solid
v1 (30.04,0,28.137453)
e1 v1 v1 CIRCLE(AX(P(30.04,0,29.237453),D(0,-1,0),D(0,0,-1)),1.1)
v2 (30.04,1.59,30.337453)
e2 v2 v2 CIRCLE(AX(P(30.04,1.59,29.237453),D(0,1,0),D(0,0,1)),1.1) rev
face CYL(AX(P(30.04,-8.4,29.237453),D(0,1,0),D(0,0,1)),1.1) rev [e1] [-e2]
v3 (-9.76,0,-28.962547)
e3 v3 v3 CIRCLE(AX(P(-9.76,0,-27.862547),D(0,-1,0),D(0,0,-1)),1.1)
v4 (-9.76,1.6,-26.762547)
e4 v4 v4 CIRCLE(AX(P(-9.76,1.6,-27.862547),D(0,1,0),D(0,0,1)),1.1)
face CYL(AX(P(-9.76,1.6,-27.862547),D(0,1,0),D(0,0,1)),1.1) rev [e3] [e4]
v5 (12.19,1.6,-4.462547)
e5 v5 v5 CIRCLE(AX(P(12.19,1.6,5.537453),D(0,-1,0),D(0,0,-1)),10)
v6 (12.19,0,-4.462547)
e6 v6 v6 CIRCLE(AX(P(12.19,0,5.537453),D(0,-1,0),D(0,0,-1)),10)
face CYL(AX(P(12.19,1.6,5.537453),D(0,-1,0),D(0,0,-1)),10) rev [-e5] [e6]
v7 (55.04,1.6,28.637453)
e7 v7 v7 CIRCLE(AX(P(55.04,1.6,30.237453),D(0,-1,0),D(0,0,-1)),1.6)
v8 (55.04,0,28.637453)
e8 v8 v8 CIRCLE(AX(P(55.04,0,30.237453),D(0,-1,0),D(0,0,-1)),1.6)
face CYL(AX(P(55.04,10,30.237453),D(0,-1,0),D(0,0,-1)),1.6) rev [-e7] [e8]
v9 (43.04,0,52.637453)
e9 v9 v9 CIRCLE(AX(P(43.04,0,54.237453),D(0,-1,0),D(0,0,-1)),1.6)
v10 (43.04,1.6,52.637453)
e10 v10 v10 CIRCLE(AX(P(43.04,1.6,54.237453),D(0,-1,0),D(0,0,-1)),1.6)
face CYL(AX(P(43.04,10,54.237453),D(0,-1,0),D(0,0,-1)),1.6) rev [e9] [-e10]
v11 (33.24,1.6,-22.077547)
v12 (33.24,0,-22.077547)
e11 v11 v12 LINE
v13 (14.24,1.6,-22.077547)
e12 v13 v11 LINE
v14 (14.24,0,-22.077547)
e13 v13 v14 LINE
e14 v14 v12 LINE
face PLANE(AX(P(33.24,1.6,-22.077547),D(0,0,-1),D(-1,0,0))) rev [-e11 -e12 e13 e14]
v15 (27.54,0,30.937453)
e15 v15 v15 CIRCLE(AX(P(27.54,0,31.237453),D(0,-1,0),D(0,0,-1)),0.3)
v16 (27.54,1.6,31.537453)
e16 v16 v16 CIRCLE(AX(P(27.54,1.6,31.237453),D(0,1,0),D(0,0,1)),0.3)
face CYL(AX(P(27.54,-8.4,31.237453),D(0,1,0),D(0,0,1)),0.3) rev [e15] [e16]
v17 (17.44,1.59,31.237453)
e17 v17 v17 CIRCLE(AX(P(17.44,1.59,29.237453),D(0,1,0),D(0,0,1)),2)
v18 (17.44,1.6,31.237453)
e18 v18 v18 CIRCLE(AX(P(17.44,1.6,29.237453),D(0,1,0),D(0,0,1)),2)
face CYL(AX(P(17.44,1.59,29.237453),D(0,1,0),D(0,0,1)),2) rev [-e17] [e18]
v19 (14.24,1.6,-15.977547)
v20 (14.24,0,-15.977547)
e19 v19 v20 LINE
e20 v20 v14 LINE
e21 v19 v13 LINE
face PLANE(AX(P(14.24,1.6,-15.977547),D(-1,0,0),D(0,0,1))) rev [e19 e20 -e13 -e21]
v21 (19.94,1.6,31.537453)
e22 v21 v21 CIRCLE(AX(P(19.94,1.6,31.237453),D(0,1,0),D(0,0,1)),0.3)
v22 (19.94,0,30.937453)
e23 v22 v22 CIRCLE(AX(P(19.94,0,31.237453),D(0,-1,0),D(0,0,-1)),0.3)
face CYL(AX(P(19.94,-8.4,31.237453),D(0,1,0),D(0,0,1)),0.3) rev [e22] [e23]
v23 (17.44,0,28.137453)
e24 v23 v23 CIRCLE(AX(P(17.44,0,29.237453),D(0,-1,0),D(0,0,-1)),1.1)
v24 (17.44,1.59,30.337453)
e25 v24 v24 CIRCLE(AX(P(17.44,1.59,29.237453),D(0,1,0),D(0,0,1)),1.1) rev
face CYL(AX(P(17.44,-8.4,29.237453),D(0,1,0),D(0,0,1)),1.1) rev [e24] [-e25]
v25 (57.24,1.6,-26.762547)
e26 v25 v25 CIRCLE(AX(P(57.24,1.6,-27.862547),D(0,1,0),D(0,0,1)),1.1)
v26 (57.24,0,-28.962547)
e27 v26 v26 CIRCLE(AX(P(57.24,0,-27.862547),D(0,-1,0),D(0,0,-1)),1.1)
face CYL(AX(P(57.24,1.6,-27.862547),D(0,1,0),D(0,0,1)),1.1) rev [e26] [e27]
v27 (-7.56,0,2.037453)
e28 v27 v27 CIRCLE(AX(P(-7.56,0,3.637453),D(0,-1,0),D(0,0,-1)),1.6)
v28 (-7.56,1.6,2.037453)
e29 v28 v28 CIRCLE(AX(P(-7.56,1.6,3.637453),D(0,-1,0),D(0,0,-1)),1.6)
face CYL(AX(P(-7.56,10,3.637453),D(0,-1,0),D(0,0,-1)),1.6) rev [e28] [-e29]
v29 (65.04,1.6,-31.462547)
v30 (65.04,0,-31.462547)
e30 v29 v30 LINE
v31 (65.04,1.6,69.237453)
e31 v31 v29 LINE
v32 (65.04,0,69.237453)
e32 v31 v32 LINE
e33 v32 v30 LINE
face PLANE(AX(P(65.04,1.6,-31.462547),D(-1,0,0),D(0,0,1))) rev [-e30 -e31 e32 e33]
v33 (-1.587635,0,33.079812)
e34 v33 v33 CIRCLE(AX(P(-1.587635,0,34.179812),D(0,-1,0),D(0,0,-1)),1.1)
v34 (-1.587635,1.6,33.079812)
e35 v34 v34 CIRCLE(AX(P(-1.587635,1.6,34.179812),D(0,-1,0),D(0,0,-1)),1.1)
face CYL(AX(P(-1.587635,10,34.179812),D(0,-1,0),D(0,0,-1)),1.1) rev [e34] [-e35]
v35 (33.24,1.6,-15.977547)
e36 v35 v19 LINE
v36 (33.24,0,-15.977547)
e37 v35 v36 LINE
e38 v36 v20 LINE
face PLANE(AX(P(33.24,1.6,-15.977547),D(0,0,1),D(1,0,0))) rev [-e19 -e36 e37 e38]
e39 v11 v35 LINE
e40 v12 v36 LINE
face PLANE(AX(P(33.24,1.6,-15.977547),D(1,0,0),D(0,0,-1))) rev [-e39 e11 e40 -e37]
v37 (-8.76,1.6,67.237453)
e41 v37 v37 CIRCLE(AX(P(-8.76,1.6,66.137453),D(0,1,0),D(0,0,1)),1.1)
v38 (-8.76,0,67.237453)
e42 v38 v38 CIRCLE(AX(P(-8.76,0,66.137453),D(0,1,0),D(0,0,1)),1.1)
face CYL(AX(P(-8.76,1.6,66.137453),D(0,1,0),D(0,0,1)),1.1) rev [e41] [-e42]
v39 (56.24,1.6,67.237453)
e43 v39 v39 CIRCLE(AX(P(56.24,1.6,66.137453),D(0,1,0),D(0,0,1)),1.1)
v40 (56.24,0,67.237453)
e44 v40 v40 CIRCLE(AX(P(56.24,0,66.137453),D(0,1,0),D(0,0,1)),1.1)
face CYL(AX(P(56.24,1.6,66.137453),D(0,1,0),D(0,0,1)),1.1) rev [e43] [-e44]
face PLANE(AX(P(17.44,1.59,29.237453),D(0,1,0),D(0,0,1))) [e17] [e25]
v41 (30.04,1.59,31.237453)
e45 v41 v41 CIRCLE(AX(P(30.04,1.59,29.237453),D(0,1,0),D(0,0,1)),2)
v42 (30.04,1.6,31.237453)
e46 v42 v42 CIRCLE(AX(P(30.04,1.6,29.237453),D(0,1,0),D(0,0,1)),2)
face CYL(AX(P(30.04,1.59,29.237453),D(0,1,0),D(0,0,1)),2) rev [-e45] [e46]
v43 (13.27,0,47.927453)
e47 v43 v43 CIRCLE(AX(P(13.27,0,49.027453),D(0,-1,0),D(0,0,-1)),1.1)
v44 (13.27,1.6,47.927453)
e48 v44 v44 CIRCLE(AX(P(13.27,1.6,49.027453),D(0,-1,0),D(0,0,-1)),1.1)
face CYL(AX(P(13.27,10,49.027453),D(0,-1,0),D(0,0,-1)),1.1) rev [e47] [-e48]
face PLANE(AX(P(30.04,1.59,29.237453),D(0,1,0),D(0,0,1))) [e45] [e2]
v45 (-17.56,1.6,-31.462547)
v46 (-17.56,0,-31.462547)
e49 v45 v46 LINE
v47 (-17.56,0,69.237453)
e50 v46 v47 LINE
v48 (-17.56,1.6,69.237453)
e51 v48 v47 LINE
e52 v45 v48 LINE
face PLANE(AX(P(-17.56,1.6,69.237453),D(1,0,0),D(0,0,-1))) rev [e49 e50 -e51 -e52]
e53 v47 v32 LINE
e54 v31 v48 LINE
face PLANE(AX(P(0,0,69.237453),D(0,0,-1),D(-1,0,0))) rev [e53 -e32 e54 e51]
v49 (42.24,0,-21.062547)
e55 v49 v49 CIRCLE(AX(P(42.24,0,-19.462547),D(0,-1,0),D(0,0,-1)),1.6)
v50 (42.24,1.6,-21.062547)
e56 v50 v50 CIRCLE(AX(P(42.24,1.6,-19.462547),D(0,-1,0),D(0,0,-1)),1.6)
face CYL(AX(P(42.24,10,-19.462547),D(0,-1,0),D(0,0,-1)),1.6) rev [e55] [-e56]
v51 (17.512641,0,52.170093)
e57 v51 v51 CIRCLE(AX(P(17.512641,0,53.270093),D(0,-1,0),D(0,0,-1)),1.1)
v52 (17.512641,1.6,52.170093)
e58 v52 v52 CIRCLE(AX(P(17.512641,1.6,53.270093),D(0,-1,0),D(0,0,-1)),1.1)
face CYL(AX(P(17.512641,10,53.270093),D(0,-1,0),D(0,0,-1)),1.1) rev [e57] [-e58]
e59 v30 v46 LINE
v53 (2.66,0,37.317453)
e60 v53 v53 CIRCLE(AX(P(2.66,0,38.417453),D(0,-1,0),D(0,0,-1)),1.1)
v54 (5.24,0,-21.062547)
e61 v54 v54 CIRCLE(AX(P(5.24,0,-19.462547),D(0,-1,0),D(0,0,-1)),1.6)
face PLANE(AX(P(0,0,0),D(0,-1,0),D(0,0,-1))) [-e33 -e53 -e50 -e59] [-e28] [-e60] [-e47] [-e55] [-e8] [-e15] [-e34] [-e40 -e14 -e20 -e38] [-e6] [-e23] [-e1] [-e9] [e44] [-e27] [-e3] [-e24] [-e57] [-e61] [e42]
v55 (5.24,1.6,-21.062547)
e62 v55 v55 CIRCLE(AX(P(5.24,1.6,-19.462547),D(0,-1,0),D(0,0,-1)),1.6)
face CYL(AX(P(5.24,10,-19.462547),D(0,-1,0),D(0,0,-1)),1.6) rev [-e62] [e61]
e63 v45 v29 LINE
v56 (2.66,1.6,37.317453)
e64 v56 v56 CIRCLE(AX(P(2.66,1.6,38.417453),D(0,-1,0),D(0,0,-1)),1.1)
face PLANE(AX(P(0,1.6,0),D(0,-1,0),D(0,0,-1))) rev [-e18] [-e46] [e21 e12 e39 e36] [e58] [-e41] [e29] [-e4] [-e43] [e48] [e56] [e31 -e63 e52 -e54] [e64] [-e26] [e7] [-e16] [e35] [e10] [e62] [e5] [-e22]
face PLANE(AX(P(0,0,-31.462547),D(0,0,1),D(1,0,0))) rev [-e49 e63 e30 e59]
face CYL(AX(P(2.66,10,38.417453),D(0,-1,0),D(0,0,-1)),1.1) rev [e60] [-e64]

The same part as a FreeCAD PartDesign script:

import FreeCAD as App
import Part
import Sketcher
from FreeCAD import Vector


def add_polygon(sketch, points):
    """Adds a closed chain of lines whose ends are joined by coincident constraints."""
    first, n = sketch.GeometryCount, len(points)
    for a, b in zip(points, points[1:] + points[:1]):
        sketch.addGeometry(Part.LineSegment(App.Vector(*a, 0), App.Vector(*b, 0)), False)
    for i in range(n):
        sketch.addConstraint(Sketcher.Constraint("Coincident", first + i, 2, first + (i + 1) % n, 1))

doc = App.newDocument("Part")
body = doc.addObject("PartDesign::Body", "Body")

# Sketch on XZ plane
sketch1 = body.newObject("Sketcher::SketchObject", "Sketch")
sketch1.AttachmentSupport = (doc.getObject("XZ_Plane"), [""])
sketch1.MapMode = "FlatFace"
add_polygon(sketch1, [(65, 70), (65, -30), (-18, -30), (-18, 70)])  # lines 0-3
sketch1.addConstraint(Sketcher.Constraint("Vertical", 0))
sketch1.addConstraint(Sketcher.Constraint("Horizontal", 1))
sketch1.addConstraint(Sketcher.Constraint("Vertical", 2))
sketch1.addConstraint(Sketcher.Constraint("Horizontal", 3))
sketch1.addConstraint(Sketcher.Constraint("DistanceX", 1, 2, 1, 1, 83.0))
sketch1.addConstraint(Sketcher.Constraint("DistanceY", 0, 2, 0, 1, 100.0))
sketch1.addConstraint(Sketcher.Constraint("DistanceX", -1, 1, 0, 2, 65.24))
sketch1.addConstraint(Sketcher.Constraint("DistanceY", 0, 2, -1, 1, 29.862547))
pad1 = body.newObject("PartDesign::Pad", "Pad")
pad1.Profile = sketch1
pad1.Length = 1.6
pad1.Reversed = True

# Sketch on XZ plane
sketch2 = body.newObject("Sketcher::SketchObject", "Sketch001")
sketch2.AttachmentSupport = (doc.getObject("XZ_Plane"), [""])
sketch2.MapMode = "FlatFace"
sketch2.AttachmentOffset = App.Placement(Vector(0, 0, -1.6), App.Rotation())
sketch2.addGeometry(Part.Circle(Vector(57.2, -27.9, 0), Vector(0, 0, 1), 1.1), False)
sketch2.addGeometry(Part.Circle(Vector(-9.8, -27.9, 0), Vector(0, 0, 1), 1.1), False)
sketch2.addConstraint(Sketcher.Constraint("Equal", 0, 1))
sketch2.addConstraint(Sketcher.Constraint("Horizontal", 0, 3, 1, 3))
sketch2.addConstraint(Sketcher.Constraint("Diameter", 0, 2.2))
sketch2.addConstraint(Sketcher.Constraint("DistanceX", 1, 3, 0, 3, 67.0))
sketch2.addConstraint(Sketcher.Constraint("DistanceX", -1, 1, 0, 3, 57.24))
sketch2.addConstraint(Sketcher.Constraint("DistanceY", 0, 3, -1, 1, 27.862547))
doc.recompute()
hole = body.newObject("PartDesign::Hole", "Hole")
hole.Profile = sketch2
hole.ThreadType = "None"
hole.Diameter = 2.2
hole.DepthType = "Dimension"
hole.Depth = 5
hole.DrillPoint = "Flat"
hole.Reversed = True

# Sketch on XZ plane
sketch3 = body.newObject("Sketcher::SketchObject", "Sketch002")
sketch3.AttachmentSupport = (doc.getObject("XZ_Plane"), [""])
sketch3.MapMode = "FlatFace"
sketch3.addGeometry(Part.Circle(Vector(12, 6, 0), Vector(0, 0, 1), 10), False)
sketch3.addConstraint(Sketcher.Constraint("Diameter", 0, 20.0))
sketch3.addConstraint(Sketcher.Constraint("DistanceX", -1, 1, 0, 3, 12.19))
sketch3.addConstraint(Sketcher.Constraint("DistanceY", -1, 1, 0, 3, 5.537453))
pocket1 = body.newObject("PartDesign::Pocket", "Pocket")
pocket1.Profile = sketch3
pocket1.Type = "ThroughAll"

# Sketch on XZ plane
sketch4 = body.newObject("Sketcher::SketchObject", "Sketch003")
sketch4.AttachmentSupport = (doc.getObject("XZ_Plane"), [""])
sketch4.MapMode = "FlatFace"
add_polygon(sketch4, [(-17.8, 70.1), (-17.8, 67.6), (65.2, 67.6), (65.2, 70.1)])  # lines 0-3
sketch4.addConstraint(Sketcher.Constraint("Vertical", 0))
sketch4.addConstraint(Sketcher.Constraint("Horizontal", 1))
sketch4.addConstraint(Sketcher.Constraint("Vertical", 2))
sketch4.addConstraint(Sketcher.Constraint("Horizontal", 3))
sketch4.addConstraint(Sketcher.Constraint("DistanceX", 1, 1, 1, 2, 83.0))
sketch4.addConstraint(Sketcher.Constraint("DistanceY", 0, 2, 0, 1, 2.5))
sketch4.addConstraint(Sketcher.Constraint("DistanceX", 0, 2, -1, 1, 17.76))
sketch4.addConstraint(Sketcher.Constraint("DistanceY", -1, 1, 0, 2, 67.637453))
pocket2 = body.newObject("PartDesign::Pocket", "Pocket001")
pocket2.Profile = sketch4
pocket2.Type = "ThroughAll"

# Sketch on XY plane
sketch5 = body.newObject("Sketcher::SketchObject", "Sketch004")
sketch5.AttachmentSupport = (doc.getObject("XY_Plane"), [""])
sketch5.MapMode = "FlatFace"
sketch5.AttachmentOffset = App.Placement(Vector(0, 0, -29.862547), App.Rotation())
add_polygon(sketch5, [(65.2, 1.6), (65.2, 0), (-17.8, 0), (-17.8, 1.6)])  # lines 0-3
sketch5.addConstraint(Sketcher.Constraint("Vertical", 0))
sketch5.addConstraint(Sketcher.Constraint("Horizontal", 1))
sketch5.addConstraint(Sketcher.Constraint("Vertical", 2))
sketch5.addConstraint(Sketcher.Constraint("Horizontal", 3))
sketch5.addConstraint(Sketcher.Constraint("PointOnObject", 0, 2, -1))
sketch5.addConstraint(Sketcher.Constraint("DistanceX", 1, 2, 1, 1, 83.0))
sketch5.addConstraint(Sketcher.Constraint("DistanceY", 0, 2, 0, 1, 1.6))
sketch5.addConstraint(Sketcher.Constraint("DistanceX", -1, 1, 0, 2, 65.24))
pad2 = body.newObject("PartDesign::Pad", "Pad001")
pad2.Profile = sketch5
pad2.Length = 1.6
pad2.Reversed = True

# Sketch on XY plane
sketch6 = body.newObject("Sketcher::SketchObject", "Sketch005")
sketch6.AttachmentSupport = (doc.getObject("XY_Plane"), [""])
sketch6.MapMode = "FlatFace"
sketch6.AttachmentOffset = App.Placement(Vector(0, 0, 67.637453), App.Rotation())
add_polygon(sketch6, [(-17.8, 1.6), (-17.8, 0), (65.2, 0), (65.2, 1.6)])  # lines 0-3
sketch6.addConstraint(Sketcher.Constraint("Vertical", 0))
sketch6.addConstraint(Sketcher.Constraint("Horizontal", 1))
sketch6.addConstraint(Sketcher.Constraint("Vertical", 2))
sketch6.addConstraint(Sketcher.Constraint("Horizontal", 3))
sketch6.addConstraint(Sketcher.Constraint("PointOnObject", 0, 2, -1))
sketch6.addConstraint(Sketcher.Constraint("DistanceX", 1, 1, 1, 2, 83.0))
sketch6.addConstraint(Sketcher.Constraint("DistanceY", 0, 2, 0, 1, 1.6))
sketch6.addConstraint(Sketcher.Constraint("DistanceX", 0, 2, -1, 1, 17.76))
pad3 = body.newObject("PartDesign::Pad", "Pad002")
pad3.Profile = sketch6
pad3.Length = 1.6

# Sketch on XZ plane
sketch7 = body.newObject("Sketcher::SketchObject", "Sketch006")
sketch7.AttachmentSupport = (doc.getObject("XZ_Plane"), [""])
sketch7.MapMode = "FlatFace"
sketch7.AttachmentOffset = App.Placement(Vector(0, 0, -1.6), App.Rotation())
sketch7.addGeometry(Part.Circle(Vector(-8.8, 66.1, 0), Vector(0, 0, 1), 1.1), False)
sketch7.addGeometry(Part.Circle(Vector(56.2, 66.1, 0), Vector(0, 0, 1), 1.1), False)
sketch7.addConstraint(Sketcher.Constraint("Equal", 0, 1))
sketch7.addConstraint(Sketcher.Constraint("Horizontal", 0, 3, 1, 3))
sketch7.addConstraint(Sketcher.Constraint("Diameter", 0, 2.2))
sketch7.addConstraint(Sketcher.Constraint("DistanceX", 0, 3, 1, 3, 65.0))
sketch7.addConstraint(Sketcher.Constraint("DistanceX", 0, 3, -1, 1, 8.76))
sketch7.addConstraint(Sketcher.Constraint("DistanceY", -1, 1, 0, 3, 66.137453))
doc.recompute()
hole2 = body.newObject("PartDesign::Hole", "Hole001")
hole2.Profile = sketch7
hole2.ThreadType = "None"
hole2.Diameter = 2.2
hole2.DepthType = "Dimension"
hole2.Depth = 1.6
hole2.DrillPoint = "Flat"
hole2.Reversed = True

# Sketch on XZ plane
sketch8 = body.newObject("Sketcher::SketchObject", "Sketch007")
sketch8.AttachmentSupport = (doc.getObject("XZ_Plane"), [""])
sketch8.MapMode = "FlatFace"
add_polygon(sketch8, [(65.04, 69.24), (65.04, -31.46), (65.24, -31.46), (65.24, 69.24)])  # lines 0-3
add_polygon(sketch8, [(-17.76, 69.24), (-17.76, -31.46), (-17.56, -31.46), (-17.56, 69.24)])  # lines 4-7
sketch8.addConstraint(Sketcher.Constraint("Vertical", 0))
sketch8.addConstraint(Sketcher.Constraint("Horizontal", 1))
sketch8.addConstraint(Sketcher.Constraint("Vertical", 2))
sketch8.addConstraint(Sketcher.Constraint("Horizontal", 3))
sketch8.addConstraint(Sketcher.Constraint("Vertical", 4))
sketch8.addConstraint(Sketcher.Constraint("Horizontal", 5))
sketch8.addConstraint(Sketcher.Constraint("Vertical", 6))
sketch8.addConstraint(Sketcher.Constraint("Horizontal", 7))
sketch8.addConstraint(Sketcher.Constraint("Horizontal", 1, 2, 4, 2))
sketch8.addConstraint(Sketcher.Constraint("Horizontal", 3, 2, 6, 2))
sketch8.addConstraint(Sketcher.Constraint("Equal", 3, 5))
sketch8.addConstraint(Sketcher.Constraint("DistanceX", 1, 1, 1, 2, 0.2))
sketch8.addConstraint(Sketcher.Constraint("DistanceY", 0, 2, 0, 1, 100.7))
sketch8.addConstraint(Sketcher.Constraint("DistanceX", 4, 2, 1, 2, 83.0))
sketch8.addConstraint(Sketcher.Constraint("DistanceX", -1, 1, 0, 2, 65.04))
sketch8.addConstraint(Sketcher.Constraint("DistanceY", 0, 2, -1, 1, 31.462547))
pocket3 = body.newObject("PartDesign::Pocket", "Pocket002")
pocket3.Profile = sketch8
pocket3.Type = "ThroughAll"

# Sketch on XZ plane
sketch9 = body.newObject("Sketcher::SketchObject", "Sketch008")
sketch9.AttachmentSupport = (doc.getObject("XZ_Plane"), [""])
sketch9.MapMode = "FlatFace"
add_polygon(sketch9, [(14, -16), (14, -22), (33, -22), (33, -16)])  # lines 0-3
sketch9.addConstraint(Sketcher.Constraint("Vertical", 0))
sketch9.addConstraint(Sketcher.Constraint("Horizontal", 1))
sketch9.addConstraint(Sketcher.Constraint("Vertical", 2))
sketch9.addConstraint(Sketcher.Constraint("Horizontal", 3))
sketch9.addConstraint(Sketcher.Constraint("DistanceX", 1, 1, 1, 2, 19.0))
sketch9.addConstraint(Sketcher.Constraint("DistanceY", 0, 2, 0, 1, 6.1))
sketch9.addConstraint(Sketcher.Constraint("DistanceX", -1, 1, 0, 2, 14.24))
sketch9.addConstraint(Sketcher.Constraint("DistanceY", 0, 2, -1, 1, 22.077547))
pocket4 = body.newObject("PartDesign::Pocket", "Pocket003")
pocket4.Profile = sketch9
pocket4.Type = "ThroughAll"

# Sketch on XZ plane
sketch10 = body.newObject("Sketcher::SketchObject", "Sketch009")
sketch10.AttachmentSupport = (doc.getObject("XZ_Plane"), [""])
sketch10.MapMode = "FlatFace"
sketch10.addGeometry(Part.Circle(Vector(55, 30.2, 0), Vector(0, 0, 1), 1.6), False)
sketch10.addGeometry(Part.Circle(Vector(-7.6, 3.6, 0), Vector(0, 0, 1), 1.6), False)
sketch10.addGeometry(Part.Circle(Vector(42.2, -19.5, 0), Vector(0, 0, 1), 1.6), False)
sketch10.addGeometry(Part.Circle(Vector(5.2, -19.5, 0), Vector(0, 0, 1), 1.6), False)
sketch10.addGeometry(Part.Circle(Vector(43, 54.2, 0), Vector(0, 0, 1), 1.6), False)
sketch10.addConstraint(Sketcher.Constraint("Equal", 0, 1))
sketch10.addConstraint(Sketcher.Constraint("Equal", 1, 2))
sketch10.addConstraint(Sketcher.Constraint("Equal", 2, 3))
sketch10.addConstraint(Sketcher.Constraint("Equal", 3, 4))
sketch10.addConstraint(Sketcher.Constraint("Horizontal", 2, 3, 3, 3))
sketch10.addConstraint(Sketcher.Constraint("Diameter", 0, 3.2))
sketch10.addConstraint(Sketcher.Constraint("DistanceX", 3, 3, 2, 3, 37.0))
sketch10.addConstraint(Sketcher.Constraint("DistanceX", 4, 3, 0, 3, 12.0))
sketch10.addConstraint(Sketcher.Constraint("DistanceY", 0, 3, 4, 3, 24.0))
sketch10.addConstraint(Sketcher.Constraint("DistanceX", 1, 3, 0, 3, 62.6))
sketch10.addConstraint(Sketcher.Constraint("DistanceY", 1, 3, 0, 3, 26.6))
sketch10.addConstraint(Sketcher.Constraint("DistanceX", 2, 3, 0, 3, 12.8))
sketch10.addConstraint(Sketcher.Constraint("DistanceY", 2, 3, 0, 3, 49.7))
sketch10.addConstraint(Sketcher.Constraint("DistanceX", -1, 1, 0, 3, 55.04))
sketch10.addConstraint(Sketcher.Constraint("DistanceY", -1, 1, 0, 3, 30.237453))
pocket5 = body.newObject("PartDesign::Pocket", "Pocket004")
pocket5.Profile = sketch10
pocket5.Length = 10

# Sketch on XZ plane
sketch11 = body.newObject("Sketcher::SketchObject", "Sketch010")
sketch11.AttachmentSupport = (doc.getObject("XZ_Plane"), [""])
sketch11.MapMode = "FlatFace"
sketch11.AttachmentOffset = App.Placement(Vector(0, 0, -1.6), App.Rotation())
sketch11.addGeometry(Part.Circle(Vector(27.54, 31.24, 0), Vector(0, 0, 1), 0.3), False)
sketch11.addGeometry(Part.Circle(Vector(19.94, 31.24, 0), Vector(0, 0, 1), 0.3), False)
sketch11.addConstraint(Sketcher.Constraint("Equal", 0, 1))
sketch11.addConstraint(Sketcher.Constraint("Horizontal", 0, 3, 1, 3))
sketch11.addConstraint(Sketcher.Constraint("Diameter", 0, 0.6))
sketch11.addConstraint(Sketcher.Constraint("DistanceX", 1, 3, 0, 3, 7.6))
sketch11.addConstraint(Sketcher.Constraint("DistanceX", -1, 1, 0, 3, 27.54))
sketch11.addConstraint(Sketcher.Constraint("DistanceY", -1, 1, 0, 3, 31.237453))
pocket6 = body.newObject("PartDesign::Pocket", "Pocket005")
pocket6.Profile = sketch11
pocket6.Length = 10
pocket6.Reversed = True

# Sketch on XZ plane
sketch12 = body.newObject("Sketcher::SketchObject", "Sketch011")
sketch12.AttachmentSupport = (doc.getObject("XZ_Plane"), [""])
sketch12.MapMode = "FlatFace"
sketch12.AttachmentOffset = App.Placement(Vector(0, 0, -1.6), App.Rotation())
sketch12.addGeometry(Part.Circle(Vector(30, 29.2, 0), Vector(0, 0, 1), 1.1), False)
sketch12.addGeometry(Part.Circle(Vector(17.4, 29.2, 0), Vector(0, 0, 1), 1.1), False)
sketch12.addConstraint(Sketcher.Constraint("Equal", 0, 1))
sketch12.addConstraint(Sketcher.Constraint("Horizontal", 0, 3, 1, 3))
sketch12.addConstraint(Sketcher.Constraint("Diameter", 0, 2.2))
sketch12.addConstraint(Sketcher.Constraint("DistanceX", 1, 3, 0, 3, 12.6))
sketch12.addConstraint(Sketcher.Constraint("DistanceX", -1, 1, 0, 3, 30.04))
sketch12.addConstraint(Sketcher.Constraint("DistanceY", -1, 1, 0, 3, 29.237453))
pocket7 = body.newObject("PartDesign::Pocket", "Pocket006")
pocket7.Profile = sketch12
pocket7.Length = 10
pocket7.Reversed = True

# Sketch on XZ plane
sketch13 = body.newObject("Sketcher::SketchObject", "Sketch012")
sketch13.AttachmentSupport = (doc.getObject("XZ_Plane"), [""])
sketch13.MapMode = "FlatFace"
sketch13.AttachmentOffset = App.Placement(Vector(0, 0, -1.6), App.Rotation())
sketch13.addGeometry(Part.Circle(Vector(30, 29.2, 0), Vector(0, 0, 1), 2), False)
sketch13.addGeometry(Part.Circle(Vector(17.4, 29.2, 0), Vector(0, 0, 1), 2), False)
sketch13.addConstraint(Sketcher.Constraint("Equal", 0, 1))
sketch13.addConstraint(Sketcher.Constraint("Horizontal", 0, 3, 1, 3))
sketch13.addConstraint(Sketcher.Constraint("Diameter", 0, 4.0))
sketch13.addConstraint(Sketcher.Constraint("DistanceX", 1, 3, 0, 3, 12.6))
sketch13.addConstraint(Sketcher.Constraint("DistanceX", -1, 1, 0, 3, 30.04))
sketch13.addConstraint(Sketcher.Constraint("DistanceY", -1, 1, 0, 3, 29.237453))
pocket8 = body.newObject("PartDesign::Pocket", "Pocket007")
pocket8.Profile = sketch13
pocket8.Length = 0.01
pocket8.Reversed = True

# Sketch on XZ plane
sketch14 = body.newObject("Sketcher::SketchObject", "Sketch013")
sketch14.AttachmentSupport = (doc.getObject("XZ_Plane"), [""])
sketch14.MapMode = "FlatFace"
sketch14.addGeometry(Part.Circle(Vector(17.5, 53.3, 0), Vector(0, 0, 1), 1.1), False)
sketch14.addGeometry(Part.Circle(Vector(13.3, 49, 0), Vector(0, 0, 1), 1.1), False)
sketch14.addGeometry(Part.Circle(Vector(2.7, 38.4, 0), Vector(0, 0, 1), 1.1), False)
sketch14.addGeometry(Part.Circle(Vector(-1.6, 34.2, 0), Vector(0, 0, 1), 1.1), False)
sketch14.addConstraint(Sketcher.Constraint("Equal", 0, 1))
sketch14.addConstraint(Sketcher.Constraint("Equal", 1, 2))
sketch14.addConstraint(Sketcher.Constraint("Equal", 2, 3))
sketch14.addConstraint(Sketcher.Constraint("Diameter", 0, 2.2))
sketch14.addConstraint(Sketcher.Constraint("DistanceX", -1, 1, 1, 3, 13.27))
sketch14.addConstraint(Sketcher.Constraint("DistanceX", -1, 1, 2, 3, 2.66))
sketch14.addConstraint(Sketcher.Constraint("DistanceY", 2, 3, 1, 3, 10.61))
sketch14.addConstraint(Sketcher.Constraint("DistanceX", -1, 1, 0, 3, 17.512641))
sketch14.addConstraint(Sketcher.Constraint("DistanceY", 1, 3, 0, 3, 4.242641))
sketch14.addConstraint(Sketcher.Constraint("DistanceY", 3, 3, 2, 3, 4.237641))
sketch14.addConstraint(Sketcher.Constraint("DistanceY", -1, 1, 0, 3, 53.270093))
sketch14.addConstraint(Sketcher.Constraint("DistanceX", 3, 3, -1, 1, 1.587635))
pocket9 = body.newObject("PartDesign::Pocket", "Pocket008")
pocket9.Profile = sketch14
pocket9.Length = 10

doc.recompute()
